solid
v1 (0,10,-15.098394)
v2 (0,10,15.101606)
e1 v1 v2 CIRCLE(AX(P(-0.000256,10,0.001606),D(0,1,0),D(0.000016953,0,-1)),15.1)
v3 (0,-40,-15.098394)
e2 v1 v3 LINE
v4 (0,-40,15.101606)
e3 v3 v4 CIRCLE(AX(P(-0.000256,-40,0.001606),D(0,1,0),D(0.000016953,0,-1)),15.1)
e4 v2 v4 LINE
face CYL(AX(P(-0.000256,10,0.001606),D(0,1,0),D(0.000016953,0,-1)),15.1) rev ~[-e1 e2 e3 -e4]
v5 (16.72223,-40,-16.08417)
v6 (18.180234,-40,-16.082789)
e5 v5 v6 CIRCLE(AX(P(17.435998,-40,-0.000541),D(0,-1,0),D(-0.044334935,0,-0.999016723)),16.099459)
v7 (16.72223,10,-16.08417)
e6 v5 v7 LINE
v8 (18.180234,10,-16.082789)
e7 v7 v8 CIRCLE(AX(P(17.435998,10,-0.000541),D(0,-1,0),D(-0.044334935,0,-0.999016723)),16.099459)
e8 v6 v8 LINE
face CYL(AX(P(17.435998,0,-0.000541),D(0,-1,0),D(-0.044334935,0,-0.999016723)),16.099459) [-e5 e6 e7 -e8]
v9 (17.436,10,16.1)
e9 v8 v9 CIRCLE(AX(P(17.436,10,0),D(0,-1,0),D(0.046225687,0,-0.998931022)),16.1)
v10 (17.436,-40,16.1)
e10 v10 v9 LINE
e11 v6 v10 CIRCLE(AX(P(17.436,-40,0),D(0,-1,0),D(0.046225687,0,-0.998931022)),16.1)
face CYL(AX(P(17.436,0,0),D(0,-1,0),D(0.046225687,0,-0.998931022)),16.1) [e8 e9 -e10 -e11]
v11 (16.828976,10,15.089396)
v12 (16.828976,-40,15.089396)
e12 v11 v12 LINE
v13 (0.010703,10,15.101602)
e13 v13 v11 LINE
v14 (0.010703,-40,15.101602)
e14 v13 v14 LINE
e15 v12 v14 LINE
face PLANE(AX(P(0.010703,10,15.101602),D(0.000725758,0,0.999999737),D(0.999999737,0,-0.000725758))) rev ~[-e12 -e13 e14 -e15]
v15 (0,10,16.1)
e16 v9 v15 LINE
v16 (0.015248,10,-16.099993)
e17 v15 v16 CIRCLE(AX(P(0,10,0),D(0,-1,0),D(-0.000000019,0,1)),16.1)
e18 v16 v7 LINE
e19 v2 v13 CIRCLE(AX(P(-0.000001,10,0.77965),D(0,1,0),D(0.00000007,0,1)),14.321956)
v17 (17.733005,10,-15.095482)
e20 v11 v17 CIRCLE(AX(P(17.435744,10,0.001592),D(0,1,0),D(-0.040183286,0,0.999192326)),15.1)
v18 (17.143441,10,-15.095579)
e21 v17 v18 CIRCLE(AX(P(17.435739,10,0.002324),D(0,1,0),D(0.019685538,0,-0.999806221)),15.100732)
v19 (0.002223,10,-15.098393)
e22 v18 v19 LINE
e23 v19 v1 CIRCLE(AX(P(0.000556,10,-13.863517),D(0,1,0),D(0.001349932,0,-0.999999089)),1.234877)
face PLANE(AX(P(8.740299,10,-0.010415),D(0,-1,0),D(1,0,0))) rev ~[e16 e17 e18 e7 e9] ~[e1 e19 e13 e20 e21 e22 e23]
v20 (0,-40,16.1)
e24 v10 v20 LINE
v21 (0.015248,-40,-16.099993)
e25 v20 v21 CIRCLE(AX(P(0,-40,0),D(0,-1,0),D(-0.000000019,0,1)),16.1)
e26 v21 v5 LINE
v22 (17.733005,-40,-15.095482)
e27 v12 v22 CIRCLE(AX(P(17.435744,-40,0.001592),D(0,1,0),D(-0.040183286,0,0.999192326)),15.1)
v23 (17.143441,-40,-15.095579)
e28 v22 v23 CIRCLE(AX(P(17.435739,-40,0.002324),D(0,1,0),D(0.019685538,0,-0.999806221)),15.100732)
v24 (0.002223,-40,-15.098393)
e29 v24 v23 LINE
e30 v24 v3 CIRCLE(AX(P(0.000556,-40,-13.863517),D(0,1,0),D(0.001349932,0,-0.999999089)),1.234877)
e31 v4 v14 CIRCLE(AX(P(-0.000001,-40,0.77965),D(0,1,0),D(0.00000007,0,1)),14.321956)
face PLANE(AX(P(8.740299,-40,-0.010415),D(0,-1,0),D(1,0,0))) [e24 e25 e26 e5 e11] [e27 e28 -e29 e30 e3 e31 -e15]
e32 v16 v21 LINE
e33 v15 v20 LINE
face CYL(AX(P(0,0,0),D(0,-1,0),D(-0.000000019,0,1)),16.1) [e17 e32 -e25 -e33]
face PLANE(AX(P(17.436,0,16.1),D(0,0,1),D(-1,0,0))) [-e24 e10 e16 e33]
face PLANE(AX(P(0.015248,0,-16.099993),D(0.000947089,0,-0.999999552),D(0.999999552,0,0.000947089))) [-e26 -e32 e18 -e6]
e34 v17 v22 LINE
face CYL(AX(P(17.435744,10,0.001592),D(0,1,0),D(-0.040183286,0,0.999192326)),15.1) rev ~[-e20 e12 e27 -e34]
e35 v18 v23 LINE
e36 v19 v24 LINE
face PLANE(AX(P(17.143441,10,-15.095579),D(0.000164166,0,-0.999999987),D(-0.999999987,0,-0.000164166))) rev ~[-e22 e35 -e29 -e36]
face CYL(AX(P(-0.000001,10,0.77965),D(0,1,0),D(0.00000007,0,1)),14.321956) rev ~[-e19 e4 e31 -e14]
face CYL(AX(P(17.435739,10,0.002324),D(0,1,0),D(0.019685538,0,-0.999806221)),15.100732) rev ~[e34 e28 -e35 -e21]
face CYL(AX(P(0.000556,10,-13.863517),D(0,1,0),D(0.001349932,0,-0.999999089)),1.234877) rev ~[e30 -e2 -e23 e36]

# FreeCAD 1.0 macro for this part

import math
import FreeCAD as App
import Part
import Sketcher

V = App.Vector

doc = App.newDocument("Part")
body = doc.addObject("PartDesign::Body", "Body")

sketch1 = body.newObject("Sketcher::SketchObject", "Sketch")
sketch1.AttachmentSupport = (doc.getObject("XZ_Plane"), [""])
sketch1.MapMode = "FlatFace"
sketch1.addGeometry(Part.LineSegment(V(17.436, 16.1, 0), V(0, 16.1, 0)), False)
sketch1.addGeometry(Part.ArcOfCircle(Part.Circle(V(0, 0, 0), V(0, 0, 1), 16.1), math.radians(90.000001), math.radians(270.054263)), False)
sketch1.addGeometry(Part.LineSegment(V(0.015248, -16.099993, 0), V(16.72223, -16.08417, 0)), False)
sketch1.addGeometry(Part.ArcOfCircle(Part.Circle(V(17.435998, -0.000541, 0), V(0, 0, 1), 16.099459), math.radians(-92.541038), math.radians(-87.350423)), False)
sketch1.addGeometry(Part.ArcOfCircle(Part.Circle(V(17.436, 0, 0), V(0, 0, 1), 16.1), math.radians(-87.350519), math.radians(90.000002)), False)
sketch1.addConstraint(Sketcher.Constraint("Coincident", 0, 2, 1, 1))
sketch1.addConstraint(Sketcher.Constraint("Coincident", 1, 2, 2, 1))
sketch1.addConstraint(Sketcher.Constraint("Coincident", 2, 2, 3, 1))
sketch1.addConstraint(Sketcher.Constraint("Coincident", 3, 2, 4, 1))
sketch1.addConstraint(Sketcher.Constraint("Coincident", 4, 2, 0, 1))
sketch1.addConstraint(Sketcher.Constraint("Horizontal", 0))
sketch1.addConstraint(Sketcher.Constraint("Coincident", 1, 3, -1, 1))
sketch1.addConstraint(Sketcher.Constraint("PointOnObject", 4, 3, -1))
sketch1.addConstraint(Sketcher.Constraint("PointOnObject", 0, 2, -2))
sketch1.addConstraint(Sketcher.Constraint("Radius", 1, 16.1))
sketch1.addConstraint(Sketcher.Constraint("DistanceX", 0, 2, 0, 1, 17.436))
sketch1.addConstraint(Sketcher.Constraint("Radius", 3, 16.099459))
sketch1.addConstraint(Sketcher.Constraint("DistanceX", -1, 1, 3, 3, 17.435998))
sketch1.addConstraint(Sketcher.Constraint("DistanceX", -1, 1, 4, 3, 17.436))
sketch1.addConstraint(Sketcher.Constraint("Distance", 2, 16.706989))
sketch1.addConstraint(Sketcher.Constraint("DistanceX", -1, 1, 2, 2, 16.72223))
sketch1.addConstraint(Sketcher.Constraint("DistanceY", 3, 2, -1, 1, 16.082789))
pad1 = body.newObject("PartDesign::Pad", "Pad")
pad1.Profile = sketch1
pad1.Type = "TwoLengths"
pad1.Length = 40
pad1.Length2 = 10

sketch2 = body.newObject("Sketcher::SketchObject", "Sketch001")
sketch2.AttachmentSupport = (doc.getObject("XZ_Plane"), [""])
sketch2.MapMode = "FlatFace"
sketch2.AttachmentOffset = App.Placement(V(0, 0, -10), App.Rotation())
sketch2.addGeometry(Part.LineSegment(V(0.010703, 15.101602, 0), V(16.828976, 15.089396, 0)), False)
sketch2.addGeometry(Part.ArcOfCircle(Part.Circle(V(17.435744, 0.001592, 0), V(0, 0, 1), 15.1), math.radians(-88.871992), math.radians(92.302953)), False)
sketch2.addGeometry(Part.ArcOfCircle(Part.Circle(V(17.435739, 0.002324, 0), V(0, 0, 1), 15.100732), math.radians(-91.109118), math.radians(-88.872029)), False)
sketch2.addGeometry(Part.LineSegment(V(17.143441, -15.095579, 0), V(0.002223, -15.098393, 0)), False)
sketch2.addGeometry(Part.ArcOfCircle(Part.Circle(V(0.000556, -13.863517, 0), V(0, 0, 1), 1.234877), math.radians(-90.025797), math.radians(-89.922655)), False)
sketch2.addGeometry(Part.ArcOfCircle(Part.Circle(V(-0.000256, 0.001606, 0), V(0, 0, 1), 15.1), math.radians(89.999029), math.radians(270.000971)), False)
sketch2.addGeometry(Part.ArcOfCircle(Part.Circle(V(-0.000001, 0.77965, 0), V(0, 0, 1), 14.321956), math.radians(89.957178), math.radians(89.999996)), False)
sketch2.addConstraint(Sketcher.Constraint("Coincident", 0, 2, 1, 2))
sketch2.addConstraint(Sketcher.Constraint("Tangent", 1, 1, 2, 2))
sketch2.addConstraint(Sketcher.Constraint("Coincident", 2, 1, 3, 1))
sketch2.addConstraint(Sketcher.Constraint("Coincident", 3, 2, 4, 2))
sketch2.addConstraint(Sketcher.Constraint("Coincident", 4, 1, 5, 2))
sketch2.addConstraint(Sketcher.Constraint("Coincident", 5, 1, 6, 2))
sketch2.addConstraint(Sketcher.Constraint("Coincident", 6, 1, 0, 1))
sketch2.addConstraint(Sketcher.Constraint("Equal", 1, 5))
sketch2.addConstraint(Sketcher.Constraint("PointOnObject", 6, 3, -2))
sketch2.addConstraint(Sketcher.Constraint("PointOnObject", 4, 1, -2))
sketch2.addConstraint(Sketcher.Constraint("PointOnObject", 5, 1, -2))
sketch2.addConstraint(Sketcher.Constraint("Radius", 1, 15.1))
sketch2.addConstraint(Sketcher.Constraint("Radius", 2, 15.100732))
sketch2.addConstraint(Sketcher.Constraint("Radius", 4, 1.234877))
sketch2.addConstraint(Sketcher.Constraint("Radius", 6, 14.321956))
sketch2.addConstraint(Sketcher.Constraint("DistanceX", 5, 3, 1, 3, 17.436))
sketch2.addConstraint(Sketcher.Constraint("DistanceY", -1, 1, 6, 1, 15.101602))
sketch2.addConstraint(Sketcher.Constraint("Distance", 3, 17.141218))
sketch2.addConstraint(Sketcher.Constraint("DistanceY", -1, 1, 1, 3, 0.001592))
sketch2.addConstraint(Sketcher.Constraint("DistanceX", -1, 1, 2, 3, 17.435739))
sketch2.addConstraint(Sketcher.Constraint("DistanceY", 1, 1, -1, 1, 15.095482))
sketch2.addConstraint(Sketcher.Constraint("DistanceX", -1, 1, 2, 1, 17.143441))
sketch2.addConstraint(Sketcher.Constraint("DistanceX", 5, 3, 4, 3, 0.000812))
sketch2.addConstraint(Sketcher.Constraint("DistanceX", 5, 3, 0, 2, 16.829232))
sketch2.addConstraint(Sketcher.Constraint("DistanceX", 5, 3, 6, 1, 0.010959))
pocket1 = body.newObject("PartDesign::Pocket", "Pocket")
pocket1.Profile = sketch2
pocket1.Type = "ThroughAll"
pocket1.Reversed = True

doc.recompute()
